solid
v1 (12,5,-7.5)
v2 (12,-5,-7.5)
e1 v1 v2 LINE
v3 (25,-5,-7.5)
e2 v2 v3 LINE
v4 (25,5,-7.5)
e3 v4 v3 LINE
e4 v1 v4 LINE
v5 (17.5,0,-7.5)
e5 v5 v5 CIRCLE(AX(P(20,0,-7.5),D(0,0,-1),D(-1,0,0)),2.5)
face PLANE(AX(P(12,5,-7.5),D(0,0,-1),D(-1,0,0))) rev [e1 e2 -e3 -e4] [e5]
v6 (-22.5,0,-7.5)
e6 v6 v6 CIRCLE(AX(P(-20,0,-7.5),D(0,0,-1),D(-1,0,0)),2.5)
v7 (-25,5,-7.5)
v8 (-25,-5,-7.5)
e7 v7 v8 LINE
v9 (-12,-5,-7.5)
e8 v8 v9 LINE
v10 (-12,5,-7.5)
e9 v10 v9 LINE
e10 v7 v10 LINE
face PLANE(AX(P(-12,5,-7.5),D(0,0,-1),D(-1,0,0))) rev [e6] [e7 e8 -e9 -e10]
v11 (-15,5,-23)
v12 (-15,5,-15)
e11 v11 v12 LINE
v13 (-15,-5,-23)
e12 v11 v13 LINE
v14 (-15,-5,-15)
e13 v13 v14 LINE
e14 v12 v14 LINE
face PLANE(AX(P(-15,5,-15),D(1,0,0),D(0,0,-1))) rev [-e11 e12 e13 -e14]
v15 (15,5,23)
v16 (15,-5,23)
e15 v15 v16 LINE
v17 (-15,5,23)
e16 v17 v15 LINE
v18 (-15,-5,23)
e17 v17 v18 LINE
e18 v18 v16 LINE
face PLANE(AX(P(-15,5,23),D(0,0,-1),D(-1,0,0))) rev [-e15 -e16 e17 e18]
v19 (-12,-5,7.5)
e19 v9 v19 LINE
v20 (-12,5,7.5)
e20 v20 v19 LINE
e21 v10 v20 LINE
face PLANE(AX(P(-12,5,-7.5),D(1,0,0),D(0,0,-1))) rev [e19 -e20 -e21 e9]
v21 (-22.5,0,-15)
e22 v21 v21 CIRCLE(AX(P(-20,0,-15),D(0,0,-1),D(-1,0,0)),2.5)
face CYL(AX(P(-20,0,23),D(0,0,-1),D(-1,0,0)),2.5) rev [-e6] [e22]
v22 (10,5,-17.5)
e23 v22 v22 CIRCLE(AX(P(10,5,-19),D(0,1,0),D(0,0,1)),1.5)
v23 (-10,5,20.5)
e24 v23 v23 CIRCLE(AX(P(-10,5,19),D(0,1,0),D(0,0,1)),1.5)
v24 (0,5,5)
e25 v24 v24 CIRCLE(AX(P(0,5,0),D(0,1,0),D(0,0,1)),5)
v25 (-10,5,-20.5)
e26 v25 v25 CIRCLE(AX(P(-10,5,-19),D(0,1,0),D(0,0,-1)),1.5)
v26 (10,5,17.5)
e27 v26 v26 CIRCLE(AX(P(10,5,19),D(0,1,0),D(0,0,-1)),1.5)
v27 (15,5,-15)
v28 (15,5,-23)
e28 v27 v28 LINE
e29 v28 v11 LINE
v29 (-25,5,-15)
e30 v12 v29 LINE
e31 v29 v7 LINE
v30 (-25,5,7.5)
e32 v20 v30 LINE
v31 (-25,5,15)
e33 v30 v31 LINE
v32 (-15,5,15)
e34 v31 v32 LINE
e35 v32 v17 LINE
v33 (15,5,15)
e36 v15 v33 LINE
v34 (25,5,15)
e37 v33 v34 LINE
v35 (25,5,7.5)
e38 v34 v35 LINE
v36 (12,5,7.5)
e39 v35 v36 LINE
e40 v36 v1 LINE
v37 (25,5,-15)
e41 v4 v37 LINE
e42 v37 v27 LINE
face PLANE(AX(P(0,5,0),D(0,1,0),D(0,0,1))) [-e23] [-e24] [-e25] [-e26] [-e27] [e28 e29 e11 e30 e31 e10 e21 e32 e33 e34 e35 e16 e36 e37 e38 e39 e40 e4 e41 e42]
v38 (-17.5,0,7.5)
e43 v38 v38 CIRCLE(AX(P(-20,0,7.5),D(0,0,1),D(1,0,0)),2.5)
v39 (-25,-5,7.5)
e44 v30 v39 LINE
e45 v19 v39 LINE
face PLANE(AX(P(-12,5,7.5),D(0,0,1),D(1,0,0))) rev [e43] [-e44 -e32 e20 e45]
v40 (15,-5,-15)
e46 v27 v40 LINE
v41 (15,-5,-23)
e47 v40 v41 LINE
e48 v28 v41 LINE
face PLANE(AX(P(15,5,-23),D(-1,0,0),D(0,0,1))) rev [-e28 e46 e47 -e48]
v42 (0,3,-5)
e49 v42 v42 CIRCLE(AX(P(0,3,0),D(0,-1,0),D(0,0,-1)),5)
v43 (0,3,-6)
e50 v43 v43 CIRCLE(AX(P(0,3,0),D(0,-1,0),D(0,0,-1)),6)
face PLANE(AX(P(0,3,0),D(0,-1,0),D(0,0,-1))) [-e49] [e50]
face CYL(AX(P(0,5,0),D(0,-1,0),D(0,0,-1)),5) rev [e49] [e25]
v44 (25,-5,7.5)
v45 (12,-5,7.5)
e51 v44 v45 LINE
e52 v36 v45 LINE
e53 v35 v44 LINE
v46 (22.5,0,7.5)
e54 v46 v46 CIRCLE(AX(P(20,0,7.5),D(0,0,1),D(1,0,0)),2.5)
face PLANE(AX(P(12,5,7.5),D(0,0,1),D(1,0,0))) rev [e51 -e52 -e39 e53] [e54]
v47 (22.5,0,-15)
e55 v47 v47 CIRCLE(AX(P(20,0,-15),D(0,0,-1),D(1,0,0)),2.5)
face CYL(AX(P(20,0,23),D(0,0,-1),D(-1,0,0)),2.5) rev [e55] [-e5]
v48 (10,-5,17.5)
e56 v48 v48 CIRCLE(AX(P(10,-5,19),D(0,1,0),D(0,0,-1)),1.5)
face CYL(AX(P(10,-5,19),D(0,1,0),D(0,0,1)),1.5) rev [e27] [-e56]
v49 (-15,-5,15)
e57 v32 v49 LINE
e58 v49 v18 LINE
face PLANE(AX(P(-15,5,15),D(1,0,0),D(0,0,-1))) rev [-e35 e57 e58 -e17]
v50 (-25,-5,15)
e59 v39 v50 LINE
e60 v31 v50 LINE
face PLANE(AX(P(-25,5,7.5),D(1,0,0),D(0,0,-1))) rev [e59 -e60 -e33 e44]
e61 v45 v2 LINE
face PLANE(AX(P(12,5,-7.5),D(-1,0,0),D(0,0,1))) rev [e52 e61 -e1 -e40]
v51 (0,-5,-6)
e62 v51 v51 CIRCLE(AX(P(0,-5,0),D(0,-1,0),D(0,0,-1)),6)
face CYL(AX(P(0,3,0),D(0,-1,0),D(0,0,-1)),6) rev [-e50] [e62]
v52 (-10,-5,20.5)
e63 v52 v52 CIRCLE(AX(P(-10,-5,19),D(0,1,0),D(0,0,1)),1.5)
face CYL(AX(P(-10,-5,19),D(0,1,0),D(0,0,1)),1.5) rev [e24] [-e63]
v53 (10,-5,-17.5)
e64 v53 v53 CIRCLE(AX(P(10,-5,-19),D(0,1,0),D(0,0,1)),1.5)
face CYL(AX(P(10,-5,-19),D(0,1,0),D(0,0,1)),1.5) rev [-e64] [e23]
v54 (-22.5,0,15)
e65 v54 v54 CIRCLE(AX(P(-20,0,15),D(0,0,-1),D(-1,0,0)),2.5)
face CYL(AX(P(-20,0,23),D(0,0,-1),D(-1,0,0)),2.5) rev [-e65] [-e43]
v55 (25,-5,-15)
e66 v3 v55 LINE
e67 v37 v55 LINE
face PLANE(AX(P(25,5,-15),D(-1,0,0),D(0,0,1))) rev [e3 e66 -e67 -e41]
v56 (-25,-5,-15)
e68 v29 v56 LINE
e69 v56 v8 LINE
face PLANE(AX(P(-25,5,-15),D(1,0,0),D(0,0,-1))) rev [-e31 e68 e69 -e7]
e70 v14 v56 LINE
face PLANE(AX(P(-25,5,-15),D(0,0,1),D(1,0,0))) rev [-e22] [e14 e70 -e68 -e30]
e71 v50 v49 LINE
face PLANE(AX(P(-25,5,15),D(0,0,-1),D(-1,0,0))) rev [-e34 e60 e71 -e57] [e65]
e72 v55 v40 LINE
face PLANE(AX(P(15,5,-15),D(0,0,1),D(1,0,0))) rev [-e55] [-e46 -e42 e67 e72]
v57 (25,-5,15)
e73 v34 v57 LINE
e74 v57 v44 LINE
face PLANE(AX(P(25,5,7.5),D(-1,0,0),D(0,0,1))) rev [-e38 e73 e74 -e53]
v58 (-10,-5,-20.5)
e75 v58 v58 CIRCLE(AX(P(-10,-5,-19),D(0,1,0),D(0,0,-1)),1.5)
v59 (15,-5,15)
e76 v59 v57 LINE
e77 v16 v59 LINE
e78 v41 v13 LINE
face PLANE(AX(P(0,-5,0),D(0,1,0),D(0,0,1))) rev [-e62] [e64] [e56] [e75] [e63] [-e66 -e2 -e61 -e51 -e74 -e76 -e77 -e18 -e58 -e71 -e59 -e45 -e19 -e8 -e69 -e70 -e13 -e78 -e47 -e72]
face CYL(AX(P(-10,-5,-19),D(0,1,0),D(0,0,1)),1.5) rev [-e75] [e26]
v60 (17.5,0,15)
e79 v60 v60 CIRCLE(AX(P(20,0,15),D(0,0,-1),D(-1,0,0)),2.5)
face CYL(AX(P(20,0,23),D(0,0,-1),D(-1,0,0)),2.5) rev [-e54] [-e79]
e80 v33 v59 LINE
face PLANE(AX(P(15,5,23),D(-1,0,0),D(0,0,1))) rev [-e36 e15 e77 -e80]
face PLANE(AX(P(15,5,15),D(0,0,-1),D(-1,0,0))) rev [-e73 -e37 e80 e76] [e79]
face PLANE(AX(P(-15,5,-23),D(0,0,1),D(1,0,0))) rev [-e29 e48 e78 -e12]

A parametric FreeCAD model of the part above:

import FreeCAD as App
import Part
import Sketcher

V = App.Vector
Q = App.Units.Quantity

doc = App.newDocument("Part")
body = doc.addObject("PartDesign::Body", "Body")

# Sketch on XZ plane
sketch1 = doc.addObject("Sketcher::SketchObject", "Sketch")
body.addObject(sketch1)
sketch1.AttachmentSupport = (doc.XZ_Plane, [""])
sketch1.MapMode = "FlatFace"
sketch1.addGeometry([
    Part.LineSegment(V(12, 7.5, 0), V(12, -7.5, 0)),  # 0
    Part.LineSegment(V(12, -7.5, 0), V(25, -7.5, 0)),  # 1
    Part.LineSegment(V(25, -7.5, 0), V(25, -15, 0)),  # 2
    Part.LineSegment(V(25, -15, 0), V(15, -15, 0)),  # 3
    Part.LineSegment(V(15, -15, 0), V(15, -23, 0)),  # 4
    Part.LineSegment(V(15, -23, 0), V(-15, -23, 0)),  # 5
    Part.LineSegment(V(-15, -23, 0), V(-15, -15, 0)),  # 6
    Part.LineSegment(V(-15, -15, 0), V(-25, -15, 0)),  # 7
    Part.LineSegment(V(-25, -15, 0), V(-25, -7.5, 0)),  # 8
    Part.LineSegment(V(-25, -7.5, 0), V(-12, -7.5, 0)),  # 9
    Part.LineSegment(V(-12, -7.5, 0), V(-12, 7.5, 0)),  # 10
    Part.LineSegment(V(-12, 7.5, 0), V(-25, 7.5, 0)),  # 11
    Part.LineSegment(V(-25, 7.5, 0), V(-25, 15, 0)),  # 12
    Part.LineSegment(V(-25, 15, 0), V(-15, 15, 0)),  # 13
    Part.LineSegment(V(-15, 15, 0), V(-15, 23, 0)),  # 14
    Part.LineSegment(V(-15, 23, 0), V(15, 23, 0)),  # 15
    Part.LineSegment(V(15, 23, 0), V(15, 15, 0)),  # 16
    Part.LineSegment(V(15, 15, 0), V(25, 15, 0)),  # 17
    Part.LineSegment(V(25, 15, 0), V(25, 7.5, 0)),  # 18
    Part.LineSegment(V(25, 7.5, 0), V(12, 7.5, 0)),  # 19
    Part.Circle(V(0, 0, 0), V(0, 0, 1), 5),  # 20
], False)
sketch1.addConstraint([
    Sketcher.Constraint("Coincident", 0, 2, 1, 1),
    Sketcher.Constraint("Coincident", 1, 2, 2, 1),
    Sketcher.Constraint("Coincident", 2, 2, 3, 1),
    Sketcher.Constraint("Coincident", 3, 2, 4, 1),
    Sketcher.Constraint("Coincident", 4, 2, 5, 1),
    Sketcher.Constraint("Coincident", 5, 2, 6, 1),
    Sketcher.Constraint("Coincident", 6, 2, 7, 1),
    Sketcher.Constraint("Coincident", 7, 2, 8, 1),
    Sketcher.Constraint("Coincident", 8, 2, 9, 1),
    Sketcher.Constraint("Coincident", 9, 2, 10, 1),
    Sketcher.Constraint("Coincident", 10, 2, 11, 1),
    Sketcher.Constraint("Coincident", 11, 2, 12, 1),
    Sketcher.Constraint("Coincident", 12, 2, 13, 1),
    Sketcher.Constraint("Coincident", 13, 2, 14, 1),
    Sketcher.Constraint("Coincident", 14, 2, 15, 1),
    Sketcher.Constraint("Coincident", 15, 2, 16, 1),
    Sketcher.Constraint("Coincident", 16, 2, 17, 1),
    Sketcher.Constraint("Coincident", 17, 2, 18, 1),
    Sketcher.Constraint("Coincident", 18, 2, 19, 1),
    Sketcher.Constraint("Coincident", 19, 2, 0, 1),
    Sketcher.Constraint("Vertical", 0),
    Sketcher.Constraint("Horizontal", 1),
    Sketcher.Constraint("Vertical", 2),
    Sketcher.Constraint("Horizontal", 3),
    Sketcher.Constraint("Vertical", 4),
    Sketcher.Constraint("Horizontal", 5),
    Sketcher.Constraint("Vertical", 6),
    Sketcher.Constraint("Horizontal", 7),
    Sketcher.Constraint("Vertical", 8),
    Sketcher.Constraint("Horizontal", 9),
    Sketcher.Constraint("Vertical", 10),
    Sketcher.Constraint("Horizontal", 11),
    Sketcher.Constraint("Vertical", 12),
    Sketcher.Constraint("Horizontal", 13),
    Sketcher.Constraint("Vertical", 14),
    Sketcher.Constraint("Horizontal", 15),
    Sketcher.Constraint("Vertical", 16),
    Sketcher.Constraint("Horizontal", 17),
    Sketcher.Constraint("Vertical", 18),
    Sketcher.Constraint("Horizontal", 19),
    Sketcher.Constraint("Coincident", 20, 3, -1, 1),
    Sketcher.Constraint("Symmetric", 0, 2, 10, 2, -1, 1),
    Sketcher.Constraint("Symmetric", 2, 2, 12, 2, -1, 1),
    Sketcher.Constraint("Symmetric", 4, 2, 14, 2, -1, 1),
    Sketcher.Constraint("Symmetric", 6, 2, 16, 2, -1, 1),
    Sketcher.Constraint("Symmetric", 8, 2, 18, 2, -1, 1),
    Sketcher.Constraint("Symmetric", 3, 2, 6, 2, -2),
    Sketcher.Constraint("Symmetric", 1, 2, 8, 2, -2),
    Sketcher.Constraint("Diameter", 20, Q("10 mm")),
    Sketcher.Constraint("DistanceX", 1, 1, 1, 2, Q("13 mm")),
    Sketcher.Constraint("DistanceX", 3, 2, 3, 1, Q("10 mm")),
    Sketcher.Constraint("DistanceX", 5, 2, 5, 1, Q("30 mm")),
    Sketcher.Constraint("DistanceY", 0, 2, 0, 1, Q("15 mm")),
    Sketcher.Constraint("DistanceY", 4, 2, 4, 1, Q("8 mm")),
    Sketcher.Constraint("DistanceY", 2, 2, 2, 1, Q("7.5 mm")),
])
pad1 = doc.addObject("PartDesign::Pad", "Pad")
body.addObject(pad1)
pad1.Profile = sketch1
pad1.Length = 10
pad1.Midplane = True

# Sketch on XY plane
sketch2 = doc.addObject("Sketcher::SketchObject", "Sketch001")
body.addObject(sketch2)
sketch2.AttachmentSupport = (doc.XY_Plane, [""])
sketch2.MapMode = "FlatFace"
sketch2.AttachmentOffset = App.Placement(V(0, 0, -15), App.Rotation())
sketch2.addGeometry([
    Part.Circle(V(-20, 0, 0), V(0, 0, 1), 2.5),
    Part.Circle(V(20, 0, 0), V(0, 0, 1), 2.5),
], False)
sketch2.addConstraint([
    Sketcher.Constraint("Equal", 0, 1),
    Sketcher.Constraint("Symmetric", 0, 3, 1, 3, -1, 1),
    Sketcher.Constraint("PointOnObject", 0, 3, -1),
    Sketcher.Constraint("Diameter", 0, Q("5 mm")),
    Sketcher.Constraint("DistanceX", 0, 3, -1, 1, Q("20 mm")),
])
pocket1 = doc.addObject("PartDesign::Pocket", "Pocket")
body.addObject(pocket1)
pocket1.Profile = sketch2
pocket1.Type = "ThroughAll"
pocket1.Reversed = True

# Sketch on XZ plane
sketch3 = doc.addObject("Sketcher::SketchObject", "Sketch002")
body.addObject(sketch3)
sketch3.AttachmentSupport = (doc.XZ_Plane, [""])
sketch3.MapMode = "FlatFace"
sketch3.AttachmentOffset = App.Placement(V(0, 0, 5), App.Rotation())
sketch3.addGeometry(Part.Circle(V(0, 0, 0), V(0, 0, 1), 6), False)
sketch3.addConstraint([
    Sketcher.Constraint("Coincident", 0, 3, -1, 1),
    Sketcher.Constraint("Diameter", 0, Q("12 mm")),
])
pocket2 = doc.addObject("PartDesign::Pocket", "Pocket001")
body.addObject(pocket2)
pocket2.Profile = sketch3
pocket2.Length = 8

# Sketch on XZ plane
sketch4 = doc.addObject("Sketcher::SketchObject", "Sketch003")
body.addObject(sketch4)
sketch4.AttachmentSupport = (doc.XZ_Plane, [""])
sketch4.MapMode = "FlatFace"
sketch4.AttachmentOffset = App.Placement(V(0, 0, -5), App.Rotation())
sketch4.addGeometry([
    Part.Circle(V(10, -19, 0), V(0, 0, 1), 1.5),
    Part.Circle(V(-10, -19, 0), V(0, 0, 1), 1.5),
    Part.Circle(V(10, 19, 0), V(0, 0, 1), 1.5),
    Part.Circle(V(-10, 19, 0), V(0, 0, 1), 1.5),
], False)
sketch4.addConstraint([
    Sketcher.Constraint("Equal", 0, 1),
    Sketcher.Constraint("Equal", 1, 2),
    Sketcher.Constraint("Equal", 2, 3),
    Sketcher.Constraint("Symmetric", 1, 3, 2, 3, -1, 1),
    Sketcher.Constraint("Symmetric", 0, 3, 3, 3, -1, 1),
    Sketcher.Constraint("Symmetric", 0, 3, 1, 3, -2),
    Sketcher.Constraint("Diameter", 0, Q("3 mm")),
    Sketcher.Constraint("DistanceX", -1, 1, 0, 3, Q("10 mm")),
    Sketcher.Constraint("DistanceY", 0, 3, -1, 1, Q("19 mm")),
])
pocket3 = doc.addObject("PartDesign::Pocket", "Pocket002")
body.addObject(pocket3)
pocket3.Profile = sketch4
pocket3.Type = "ThroughAll"
pocket3.Reversed = True

doc.recompute()
